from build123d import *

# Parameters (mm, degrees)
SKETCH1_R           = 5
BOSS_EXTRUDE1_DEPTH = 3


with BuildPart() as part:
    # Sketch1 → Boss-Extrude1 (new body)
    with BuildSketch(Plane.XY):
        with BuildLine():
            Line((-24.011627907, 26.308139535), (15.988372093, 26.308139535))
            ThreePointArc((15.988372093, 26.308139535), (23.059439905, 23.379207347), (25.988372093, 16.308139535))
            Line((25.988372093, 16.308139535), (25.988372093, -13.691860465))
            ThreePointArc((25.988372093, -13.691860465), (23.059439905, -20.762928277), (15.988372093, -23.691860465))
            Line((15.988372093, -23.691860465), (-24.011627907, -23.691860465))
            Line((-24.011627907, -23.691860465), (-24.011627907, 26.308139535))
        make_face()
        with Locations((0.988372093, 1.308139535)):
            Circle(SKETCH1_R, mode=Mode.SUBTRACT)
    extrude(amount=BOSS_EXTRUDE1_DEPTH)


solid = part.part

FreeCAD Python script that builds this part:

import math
import FreeCAD as App
import Part
import Sketcher

doc = App.newDocument("Part")
params = doc.addObject("Spreadsheet::Sheet", "Params")
for row, (alias, value) in enumerate([
    ("sketch1_diameter", "10 mm"),
    ("sketch1_radius", "10 mm"),
    ("sketch1_width", "40 mm"),
    ("sketch1_height", "50 mm"),
    ("pad1_length", "3 mm"),
], start=1):
    params.set(f"A{row}", alias)
    params.set(f"B{row}", "=" + value)
    params.setAlias(f"B{row}", alias)

body = doc.addObject("PartDesign::Body", "Body")

sketch1 = body.newObject("Sketcher::SketchObject", "Sketch")
sketch1.AttachmentSupport = (doc.getObject("XY_Plane"), [""])
sketch1.MapMode = "FlatFace"
sketch1.addGeometry([
    Part.LineSegment(App.Vector(16, 26, 0), App.Vector(-24, 26, 0)),
    Part.LineSegment(App.Vector(-24, 26, 0), App.Vector(-24, -24, 0)),
    Part.LineSegment(App.Vector(-24, -24, 0), App.Vector(16, -24, 0)),
    Part.ArcOfCircle(Part.Circle(App.Vector(16, -14, 0), App.Vector(0, 0, 1), 10), math.radians(-90), math.radians(0)),
    Part.LineSegment(App.Vector(26, -14, 0), App.Vector(26, 16, 0)),
    Part.ArcOfCircle(Part.Circle(App.Vector(16, 16, 0), App.Vector(0, 0, 1), 10), math.radians(0), math.radians(90)),
    Part.Circle(App.Vector(1, 1, 0), App.Vector(0, 0, 1), 5),
], False)
sketch1.addConstraint([
    Sketcher.Constraint("Coincident", 0, 2, 1, 1),
    Sketcher.Constraint("Coincident", 1, 2, 2, 1),
    Sketcher.Constraint("Tangent", 2, 2, 3, 1),
    Sketcher.Constraint("Tangent", 3, 2, 4, 1),
    Sketcher.Constraint("Tangent", 4, 2, 5, 1),
    Sketcher.Constraint("Tangent", 5, 2, 0, 1),
    Sketcher.Constraint("Horizontal", 0),
    Sketcher.Constraint("Vertical", 1),
    Sketcher.Constraint("Horizontal", 2),
    Sketcher.Constraint("Vertical", 4),
    Sketcher.Constraint("Equal", 3, 5),
    Sketcher.Constraint("Diameter", 6, 10.0),
    Sketcher.Constraint("Radius", 3, 10.0),
    Sketcher.Constraint("DistanceX", 0, 2, 0, 1, 40.0),
    Sketcher.Constraint("DistanceY", 1, 2, 1, 1, 50.0),
    Sketcher.Constraint("DistanceX", 6, 3, 5, 3, 15.0),
    Sketcher.Constraint("DistanceY", 6, 3, 5, 3, 15.0),
    Sketcher.Constraint("DistanceY", 3, 3, -1, 1, 13.69186),
    Sketcher.Constraint("DistanceX", -1, 1, 3, 3, 15.988372),
])
sketch1.setExpression("Constraints[11]", "Params.sketch1_diameter")
sketch1.setExpression("Constraints[12]", "Params.sketch1_radius")
sketch1.setExpression("Constraints[13]", "Params.sketch1_width")
sketch1.setExpression("Constraints[14]", "Params.sketch1_height")
pad1 = body.newObject("PartDesign::Pad", "Pad")
pad1.Profile = sketch1
pad1.setExpression("Length", "Params.pad1_length")

doc.recompute()
